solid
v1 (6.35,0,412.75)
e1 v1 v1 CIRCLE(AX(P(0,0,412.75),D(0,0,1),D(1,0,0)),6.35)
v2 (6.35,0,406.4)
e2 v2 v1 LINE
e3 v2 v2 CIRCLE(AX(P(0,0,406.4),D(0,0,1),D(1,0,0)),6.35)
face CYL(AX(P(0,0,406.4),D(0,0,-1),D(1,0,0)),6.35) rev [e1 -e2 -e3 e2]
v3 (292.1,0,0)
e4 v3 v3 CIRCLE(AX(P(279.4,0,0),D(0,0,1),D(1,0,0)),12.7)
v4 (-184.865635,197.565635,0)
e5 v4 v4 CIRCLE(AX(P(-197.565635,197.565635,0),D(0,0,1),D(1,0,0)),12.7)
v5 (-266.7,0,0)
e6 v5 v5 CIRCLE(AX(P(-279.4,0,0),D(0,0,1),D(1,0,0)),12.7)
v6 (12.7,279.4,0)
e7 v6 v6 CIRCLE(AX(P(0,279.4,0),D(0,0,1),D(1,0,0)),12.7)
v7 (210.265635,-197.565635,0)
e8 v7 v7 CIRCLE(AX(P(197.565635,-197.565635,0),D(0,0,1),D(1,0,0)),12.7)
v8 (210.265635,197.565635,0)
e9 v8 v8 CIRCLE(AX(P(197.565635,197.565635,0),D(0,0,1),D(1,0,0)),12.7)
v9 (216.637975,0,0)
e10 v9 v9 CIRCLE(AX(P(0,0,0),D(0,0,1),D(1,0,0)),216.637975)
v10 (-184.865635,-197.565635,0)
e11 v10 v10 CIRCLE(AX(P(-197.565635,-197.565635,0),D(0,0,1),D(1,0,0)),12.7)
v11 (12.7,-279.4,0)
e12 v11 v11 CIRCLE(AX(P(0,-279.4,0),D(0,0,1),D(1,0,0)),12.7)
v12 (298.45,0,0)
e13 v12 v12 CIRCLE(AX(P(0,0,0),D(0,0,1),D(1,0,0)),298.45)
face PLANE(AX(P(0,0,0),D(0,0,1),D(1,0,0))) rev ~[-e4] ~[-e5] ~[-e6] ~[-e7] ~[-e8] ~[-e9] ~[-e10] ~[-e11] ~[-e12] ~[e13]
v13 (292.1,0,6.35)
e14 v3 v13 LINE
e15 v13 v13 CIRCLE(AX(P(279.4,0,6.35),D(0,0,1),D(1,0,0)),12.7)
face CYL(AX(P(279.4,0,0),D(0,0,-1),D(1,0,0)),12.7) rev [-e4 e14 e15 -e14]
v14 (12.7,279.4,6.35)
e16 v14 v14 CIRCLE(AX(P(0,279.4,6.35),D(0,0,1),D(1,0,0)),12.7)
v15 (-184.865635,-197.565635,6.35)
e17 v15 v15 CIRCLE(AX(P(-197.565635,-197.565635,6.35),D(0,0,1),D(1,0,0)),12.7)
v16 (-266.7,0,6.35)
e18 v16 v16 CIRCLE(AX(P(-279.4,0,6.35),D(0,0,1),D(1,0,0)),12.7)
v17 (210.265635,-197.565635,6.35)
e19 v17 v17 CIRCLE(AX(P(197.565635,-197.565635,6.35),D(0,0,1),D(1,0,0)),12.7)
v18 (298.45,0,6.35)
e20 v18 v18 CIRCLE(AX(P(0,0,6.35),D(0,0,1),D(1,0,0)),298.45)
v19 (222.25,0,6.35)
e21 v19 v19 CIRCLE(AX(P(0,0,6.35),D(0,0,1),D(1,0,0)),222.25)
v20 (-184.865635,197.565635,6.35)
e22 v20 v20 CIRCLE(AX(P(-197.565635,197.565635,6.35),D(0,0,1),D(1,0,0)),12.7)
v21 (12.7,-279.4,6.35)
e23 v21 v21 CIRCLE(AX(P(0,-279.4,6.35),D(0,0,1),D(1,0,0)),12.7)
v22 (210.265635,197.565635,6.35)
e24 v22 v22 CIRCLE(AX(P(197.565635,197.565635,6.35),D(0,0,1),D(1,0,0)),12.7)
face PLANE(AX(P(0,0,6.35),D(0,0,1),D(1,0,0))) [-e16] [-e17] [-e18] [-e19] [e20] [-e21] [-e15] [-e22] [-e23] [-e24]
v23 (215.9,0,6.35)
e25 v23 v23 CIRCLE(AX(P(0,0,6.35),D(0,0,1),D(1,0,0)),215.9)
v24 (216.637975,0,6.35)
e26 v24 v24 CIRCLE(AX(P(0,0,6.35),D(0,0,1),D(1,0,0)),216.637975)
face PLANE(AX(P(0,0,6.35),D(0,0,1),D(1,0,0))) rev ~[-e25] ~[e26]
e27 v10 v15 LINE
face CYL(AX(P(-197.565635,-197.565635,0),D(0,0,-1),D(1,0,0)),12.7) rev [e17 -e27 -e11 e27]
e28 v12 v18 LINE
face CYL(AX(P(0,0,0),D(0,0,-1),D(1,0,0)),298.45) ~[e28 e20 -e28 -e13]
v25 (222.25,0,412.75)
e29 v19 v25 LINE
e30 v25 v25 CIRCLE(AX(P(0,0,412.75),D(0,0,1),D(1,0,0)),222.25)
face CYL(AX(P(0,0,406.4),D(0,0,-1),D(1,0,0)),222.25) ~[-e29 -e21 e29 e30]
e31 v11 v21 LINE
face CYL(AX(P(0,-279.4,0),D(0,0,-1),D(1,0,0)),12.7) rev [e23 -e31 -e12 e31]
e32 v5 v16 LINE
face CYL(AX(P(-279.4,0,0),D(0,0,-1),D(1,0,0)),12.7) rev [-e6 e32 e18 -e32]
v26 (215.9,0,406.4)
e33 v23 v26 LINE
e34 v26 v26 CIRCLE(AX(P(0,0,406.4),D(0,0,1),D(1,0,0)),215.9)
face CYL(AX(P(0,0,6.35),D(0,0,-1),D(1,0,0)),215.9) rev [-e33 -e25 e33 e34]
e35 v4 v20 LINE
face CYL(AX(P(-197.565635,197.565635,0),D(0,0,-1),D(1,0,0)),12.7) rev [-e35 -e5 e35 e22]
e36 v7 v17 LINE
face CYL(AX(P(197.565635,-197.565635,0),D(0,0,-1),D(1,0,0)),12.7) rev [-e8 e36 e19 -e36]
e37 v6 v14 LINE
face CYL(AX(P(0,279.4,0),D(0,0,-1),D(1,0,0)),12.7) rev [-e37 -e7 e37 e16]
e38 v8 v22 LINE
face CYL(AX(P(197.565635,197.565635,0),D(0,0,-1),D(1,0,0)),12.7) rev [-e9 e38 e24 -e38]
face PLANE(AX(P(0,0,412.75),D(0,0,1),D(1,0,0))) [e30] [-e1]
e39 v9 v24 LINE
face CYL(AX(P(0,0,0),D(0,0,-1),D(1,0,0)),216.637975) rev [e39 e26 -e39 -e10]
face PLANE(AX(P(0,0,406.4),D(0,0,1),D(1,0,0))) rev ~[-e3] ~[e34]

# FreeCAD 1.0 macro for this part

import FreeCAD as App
import Part
import Sketcher
from FreeCAD import Vector
Q = App.Units.Quantity

doc = App.newDocument("Part")
body = doc.addObject("PartDesign::Body", "Body")

# Sketch on XY plane
sketch1 = body.newObject("Sketcher::SketchObject", "Sketch")
sketch1.AttachmentSupport = (doc.getObject("XY_Plane"), [""])
sketch1.MapMode = "FlatFace"
sketch1.addGeometry([
    Part.Circle(Vector(0, 0, 0), Vector(0, 0, 1), 298),  # 0
    Part.Circle(Vector(-198, -198, 0), Vector(0, 0, 1), 13),  # 1
    Part.Circle(Vector(0, -279, 0), Vector(0, 0, 1), 13),  # 2
    Part.Circle(Vector(198, -198, 0), Vector(0, 0, 1), 13),  # 3
    Part.Circle(Vector(0, 0, 0), Vector(0, 0, 1), 217),  # 4
    Part.Circle(Vector(-279, 0, 0), Vector(0, 0, 1), 13),  # 5
    Part.Circle(Vector(-198, 198, 0), Vector(0, 0, 1), 13),  # 6
    Part.Circle(Vector(279, 0, 0), Vector(0, 0, 1), 13),  # 7
    Part.Circle(Vector(0, 279, 0), Vector(0, 0, 1), 13),  # 8
    Part.Circle(Vector(198, 198, 0), Vector(0, 0, 1), 13),  # 9
], False)
sketch1.addConstraint([
    Sketcher.Constraint("Coincident", 0, 3, -1, 1),
    Sketcher.Constraint("Coincident", 4, 3, -1, 1),
    Sketcher.Constraint("Equal", 1, 2),
    Sketcher.Constraint("Equal", 2, 3),
    Sketcher.Constraint("Equal", 3, 5),
    Sketcher.Constraint("Equal", 5, 6),
    Sketcher.Constraint("Equal", 6, 7),
    Sketcher.Constraint("Equal", 7, 8),
    Sketcher.Constraint("Equal", 8, 9),
    Sketcher.Constraint("Symmetric", 3, 3, 6, 3, -1, 1),
    Sketcher.Constraint("Symmetric", 5, 3, 7, 3, -1, 1),
    Sketcher.Constraint("Symmetric", 2, 3, 8, 3, -1, 1),
    Sketcher.Constraint("Symmetric", 1, 3, 9, 3, -1, 1),
    Sketcher.Constraint("Symmetric", 1, 3, 3, 3, -2),
    Sketcher.Constraint("PointOnObject", 2, 3, -2),
    Sketcher.Constraint("PointOnObject", 5, 3, -1),
    Sketcher.Constraint("Diameter", 1, Q("1 in")),
    Sketcher.Constraint("Diameter", 0, Q("23.5 in")),
    Sketcher.Constraint("DistanceY", 2, 3, -1, 1, Q("11 in")),
    Sketcher.Constraint("DistanceX", 5, 3, -1, 1, Q("11 in")),
    Sketcher.Constraint("Diameter", 4, Q("433.27595 mm")),
    Sketcher.Constraint("DistanceX", 1, 3, 3, 3, Q("395.13127 mm")),
    Sketcher.Constraint("DistanceY", 1, 3, 6, 3, Q("395.13127 mm")),
])
pad1 = body.newObject("PartDesign::Pad", "Pad")
pad1.Profile = sketch1
pad1.Length = Q("0.25 in")

# Sketch on XY plane
sketch2 = body.newObject("Sketcher::SketchObject", "Sketch001")
sketch2.AttachmentSupport = (doc.getObject("XY_Plane"), [""])
sketch2.MapMode = "FlatFace"
sketch2.AttachmentOffset = App.Placement(Vector(0, 0, 0.25 * 25.4), App.Rotation())
sketch2.addGeometry([
    Part.Circle(Vector(0, 0, 0), Vector(0, 0, 1), 222),
    Part.Circle(Vector(0, 0, 0), Vector(0, 0, 1), 216),
], False)
sketch2.addConstraint([
    Sketcher.Constraint("Coincident", 0, 3, -1, 1),
    Sketcher.Constraint("Coincident", 1, 3, -1, 1),
    Sketcher.Constraint("Diameter", 1, Q("17 in")),
    Sketcher.Constraint("Diameter", 0, Q("17.5 in")),
])
pad2 = body.newObject("PartDesign::Pad", "Pad001")
pad2.Profile = sketch2
pad2.Length = Q("15.75 in")

# Sketch on XY plane
sketch3 = body.newObject("Sketcher::SketchObject", "Sketch002")
sketch3.AttachmentSupport = (doc.getObject("XY_Plane"), [""])
sketch3.MapMode = "FlatFace"
sketch3.AttachmentOffset = App.Placement(Vector(0, 0, 16 * 25.4), App.Rotation())
sketch3.addGeometry([
    Part.Circle(Vector(0, 0, 0), Vector(0, 0, 1), 222),
    Part.Circle(Vector(0, 0, 0), Vector(0, 0, 1), 6),
], False)
sketch3.addConstraint([
    Sketcher.Constraint("Coincident", 0, 3, -1, 1),
    Sketcher.Constraint("Coincident", 1, 3, -1, 1),
    Sketcher.Constraint("Diameter", 0, Q("17.5 in")),
    Sketcher.Constraint("Diameter", 1, Q("0.5 in")),
])
pad3 = body.newObject("PartDesign::Pad", "Pad002")
pad3.Profile = sketch3
pad3.Length = Q("0.25 in")

doc.recompute()
